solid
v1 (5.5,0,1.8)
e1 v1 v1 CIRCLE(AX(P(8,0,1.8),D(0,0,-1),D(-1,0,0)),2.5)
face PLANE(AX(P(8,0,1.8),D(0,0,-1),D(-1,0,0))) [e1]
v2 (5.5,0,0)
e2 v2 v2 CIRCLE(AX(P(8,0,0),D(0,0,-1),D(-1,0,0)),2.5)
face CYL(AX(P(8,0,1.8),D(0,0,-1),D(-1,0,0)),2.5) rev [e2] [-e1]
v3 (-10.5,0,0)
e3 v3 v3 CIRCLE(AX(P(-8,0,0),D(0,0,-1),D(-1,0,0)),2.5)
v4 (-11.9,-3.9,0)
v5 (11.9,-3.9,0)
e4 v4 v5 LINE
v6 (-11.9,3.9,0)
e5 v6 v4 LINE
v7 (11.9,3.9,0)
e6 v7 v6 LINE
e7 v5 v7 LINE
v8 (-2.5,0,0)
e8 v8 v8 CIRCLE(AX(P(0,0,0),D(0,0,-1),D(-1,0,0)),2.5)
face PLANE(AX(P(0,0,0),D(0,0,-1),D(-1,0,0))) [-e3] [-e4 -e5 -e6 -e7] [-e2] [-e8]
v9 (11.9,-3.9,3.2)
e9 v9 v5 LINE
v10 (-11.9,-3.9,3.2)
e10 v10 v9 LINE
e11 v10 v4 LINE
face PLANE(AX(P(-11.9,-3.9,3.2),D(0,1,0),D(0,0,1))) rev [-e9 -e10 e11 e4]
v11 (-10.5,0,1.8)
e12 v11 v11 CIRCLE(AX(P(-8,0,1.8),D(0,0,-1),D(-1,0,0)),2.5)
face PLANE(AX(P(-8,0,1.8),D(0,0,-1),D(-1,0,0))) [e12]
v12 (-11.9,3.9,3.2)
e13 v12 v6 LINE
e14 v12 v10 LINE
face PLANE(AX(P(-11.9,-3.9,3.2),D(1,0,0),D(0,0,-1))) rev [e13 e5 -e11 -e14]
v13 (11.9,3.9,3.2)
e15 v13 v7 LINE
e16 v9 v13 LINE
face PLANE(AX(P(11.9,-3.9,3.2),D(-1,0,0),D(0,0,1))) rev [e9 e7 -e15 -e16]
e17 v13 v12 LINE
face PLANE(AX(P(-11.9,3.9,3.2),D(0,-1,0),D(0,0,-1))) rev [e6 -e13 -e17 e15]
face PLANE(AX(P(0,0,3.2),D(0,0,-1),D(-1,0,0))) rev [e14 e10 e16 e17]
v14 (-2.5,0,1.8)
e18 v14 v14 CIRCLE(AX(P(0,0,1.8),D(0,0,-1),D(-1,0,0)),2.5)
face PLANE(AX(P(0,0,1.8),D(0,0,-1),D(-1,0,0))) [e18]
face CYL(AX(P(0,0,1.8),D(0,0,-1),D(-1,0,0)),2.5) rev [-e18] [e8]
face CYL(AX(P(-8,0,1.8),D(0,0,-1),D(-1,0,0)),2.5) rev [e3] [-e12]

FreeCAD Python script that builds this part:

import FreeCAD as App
import Part
import Sketcher
from FreeCAD import Vector
Q = App.Units.Quantity


def add_polygon(sketch, points):
    """Adds a closed chain of lines whose ends are joined by coincident constraints."""
    first, n = sketch.GeometryCount, len(points)
    for a, b in zip(points, points[1:] + points[:1]):
        sketch.addGeometry(Part.LineSegment(App.Vector(*a, 0), App.Vector(*b, 0)), False)
    for i in range(n):
        sketch.addConstraint(Sketcher.Constraint("Coincident", first + i, 2, first + (i + 1) % n, 1))

doc = App.newDocument("Part")
body = doc.addObject("PartDesign::Body", "Body")

sketch1 = doc.addObject("Sketcher::SketchObject", "Sketch")
body.addObject(sketch1)
sketch1.AttachmentSupport = (doc.XY_Plane, [""])
sketch1.MapMode = "FlatFace"
add_polygon(sketch1, [(-12, 4), (-12, -4), (12, -4), (12, 4)])
sketch1.addConstraint([
    Sketcher.Constraint("Vertical", 0),
    Sketcher.Constraint("Horizontal", 1),
    Sketcher.Constraint("Vertical", 2),
    Sketcher.Constraint("Horizontal", 3),
    Sketcher.Constraint("Symmetric", 0, 2, 2, 2, -1, 1),
    Sketcher.Constraint("DistanceX", 1, 1, 1, 2, Q("23.8 mm")),
    Sketcher.Constraint("DistanceY", 0, 2, 0, 1, Q("7.8 mm")),
])
pad1 = doc.addObject("PartDesign::Pad", "Pad")
body.addObject(pad1)
pad1.Profile = sketch1
pad1.Length = 3.2

sketch2 = doc.addObject("Sketcher::SketchObject", "Sketch001")
body.addObject(sketch2)
sketch2.AttachmentSupport = (doc.XY_Plane, [""])
sketch2.MapMode = "FlatFace"
sketch2.addGeometry([
    Part.Circle(Vector(0, 0, 0), Vector(0, 0, 1), 2.5),
    Part.Circle(Vector(-8, 0, 0), Vector(0, 0, 1), 2.5),
    Part.Circle(Vector(8, 0, 0), Vector(0, 0, 1), 2.5),
], False)
sketch2.addConstraint([
    Sketcher.Constraint("Coincident", 0, 3, -1, 1),
    Sketcher.Constraint("Equal", 0, 1),
    Sketcher.Constraint("Equal", 1, 2),
    Sketcher.Constraint("Symmetric", 1, 3, 2, 3, -1, 1),
    Sketcher.Constraint("PointOnObject", 1, 3, -1),
    Sketcher.Constraint("Diameter", 0, Q("5 mm")),
    Sketcher.Constraint("DistanceX", 1, 3, -1, 1, Q("8 mm")),
])
pocket1 = doc.addObject("PartDesign::Pocket", "Pocket")
body.addObject(pocket1)
pocket1.Profile = sketch2
pocket1.Length = 1.8
pocket1.Reversed = True

doc.recompute()
